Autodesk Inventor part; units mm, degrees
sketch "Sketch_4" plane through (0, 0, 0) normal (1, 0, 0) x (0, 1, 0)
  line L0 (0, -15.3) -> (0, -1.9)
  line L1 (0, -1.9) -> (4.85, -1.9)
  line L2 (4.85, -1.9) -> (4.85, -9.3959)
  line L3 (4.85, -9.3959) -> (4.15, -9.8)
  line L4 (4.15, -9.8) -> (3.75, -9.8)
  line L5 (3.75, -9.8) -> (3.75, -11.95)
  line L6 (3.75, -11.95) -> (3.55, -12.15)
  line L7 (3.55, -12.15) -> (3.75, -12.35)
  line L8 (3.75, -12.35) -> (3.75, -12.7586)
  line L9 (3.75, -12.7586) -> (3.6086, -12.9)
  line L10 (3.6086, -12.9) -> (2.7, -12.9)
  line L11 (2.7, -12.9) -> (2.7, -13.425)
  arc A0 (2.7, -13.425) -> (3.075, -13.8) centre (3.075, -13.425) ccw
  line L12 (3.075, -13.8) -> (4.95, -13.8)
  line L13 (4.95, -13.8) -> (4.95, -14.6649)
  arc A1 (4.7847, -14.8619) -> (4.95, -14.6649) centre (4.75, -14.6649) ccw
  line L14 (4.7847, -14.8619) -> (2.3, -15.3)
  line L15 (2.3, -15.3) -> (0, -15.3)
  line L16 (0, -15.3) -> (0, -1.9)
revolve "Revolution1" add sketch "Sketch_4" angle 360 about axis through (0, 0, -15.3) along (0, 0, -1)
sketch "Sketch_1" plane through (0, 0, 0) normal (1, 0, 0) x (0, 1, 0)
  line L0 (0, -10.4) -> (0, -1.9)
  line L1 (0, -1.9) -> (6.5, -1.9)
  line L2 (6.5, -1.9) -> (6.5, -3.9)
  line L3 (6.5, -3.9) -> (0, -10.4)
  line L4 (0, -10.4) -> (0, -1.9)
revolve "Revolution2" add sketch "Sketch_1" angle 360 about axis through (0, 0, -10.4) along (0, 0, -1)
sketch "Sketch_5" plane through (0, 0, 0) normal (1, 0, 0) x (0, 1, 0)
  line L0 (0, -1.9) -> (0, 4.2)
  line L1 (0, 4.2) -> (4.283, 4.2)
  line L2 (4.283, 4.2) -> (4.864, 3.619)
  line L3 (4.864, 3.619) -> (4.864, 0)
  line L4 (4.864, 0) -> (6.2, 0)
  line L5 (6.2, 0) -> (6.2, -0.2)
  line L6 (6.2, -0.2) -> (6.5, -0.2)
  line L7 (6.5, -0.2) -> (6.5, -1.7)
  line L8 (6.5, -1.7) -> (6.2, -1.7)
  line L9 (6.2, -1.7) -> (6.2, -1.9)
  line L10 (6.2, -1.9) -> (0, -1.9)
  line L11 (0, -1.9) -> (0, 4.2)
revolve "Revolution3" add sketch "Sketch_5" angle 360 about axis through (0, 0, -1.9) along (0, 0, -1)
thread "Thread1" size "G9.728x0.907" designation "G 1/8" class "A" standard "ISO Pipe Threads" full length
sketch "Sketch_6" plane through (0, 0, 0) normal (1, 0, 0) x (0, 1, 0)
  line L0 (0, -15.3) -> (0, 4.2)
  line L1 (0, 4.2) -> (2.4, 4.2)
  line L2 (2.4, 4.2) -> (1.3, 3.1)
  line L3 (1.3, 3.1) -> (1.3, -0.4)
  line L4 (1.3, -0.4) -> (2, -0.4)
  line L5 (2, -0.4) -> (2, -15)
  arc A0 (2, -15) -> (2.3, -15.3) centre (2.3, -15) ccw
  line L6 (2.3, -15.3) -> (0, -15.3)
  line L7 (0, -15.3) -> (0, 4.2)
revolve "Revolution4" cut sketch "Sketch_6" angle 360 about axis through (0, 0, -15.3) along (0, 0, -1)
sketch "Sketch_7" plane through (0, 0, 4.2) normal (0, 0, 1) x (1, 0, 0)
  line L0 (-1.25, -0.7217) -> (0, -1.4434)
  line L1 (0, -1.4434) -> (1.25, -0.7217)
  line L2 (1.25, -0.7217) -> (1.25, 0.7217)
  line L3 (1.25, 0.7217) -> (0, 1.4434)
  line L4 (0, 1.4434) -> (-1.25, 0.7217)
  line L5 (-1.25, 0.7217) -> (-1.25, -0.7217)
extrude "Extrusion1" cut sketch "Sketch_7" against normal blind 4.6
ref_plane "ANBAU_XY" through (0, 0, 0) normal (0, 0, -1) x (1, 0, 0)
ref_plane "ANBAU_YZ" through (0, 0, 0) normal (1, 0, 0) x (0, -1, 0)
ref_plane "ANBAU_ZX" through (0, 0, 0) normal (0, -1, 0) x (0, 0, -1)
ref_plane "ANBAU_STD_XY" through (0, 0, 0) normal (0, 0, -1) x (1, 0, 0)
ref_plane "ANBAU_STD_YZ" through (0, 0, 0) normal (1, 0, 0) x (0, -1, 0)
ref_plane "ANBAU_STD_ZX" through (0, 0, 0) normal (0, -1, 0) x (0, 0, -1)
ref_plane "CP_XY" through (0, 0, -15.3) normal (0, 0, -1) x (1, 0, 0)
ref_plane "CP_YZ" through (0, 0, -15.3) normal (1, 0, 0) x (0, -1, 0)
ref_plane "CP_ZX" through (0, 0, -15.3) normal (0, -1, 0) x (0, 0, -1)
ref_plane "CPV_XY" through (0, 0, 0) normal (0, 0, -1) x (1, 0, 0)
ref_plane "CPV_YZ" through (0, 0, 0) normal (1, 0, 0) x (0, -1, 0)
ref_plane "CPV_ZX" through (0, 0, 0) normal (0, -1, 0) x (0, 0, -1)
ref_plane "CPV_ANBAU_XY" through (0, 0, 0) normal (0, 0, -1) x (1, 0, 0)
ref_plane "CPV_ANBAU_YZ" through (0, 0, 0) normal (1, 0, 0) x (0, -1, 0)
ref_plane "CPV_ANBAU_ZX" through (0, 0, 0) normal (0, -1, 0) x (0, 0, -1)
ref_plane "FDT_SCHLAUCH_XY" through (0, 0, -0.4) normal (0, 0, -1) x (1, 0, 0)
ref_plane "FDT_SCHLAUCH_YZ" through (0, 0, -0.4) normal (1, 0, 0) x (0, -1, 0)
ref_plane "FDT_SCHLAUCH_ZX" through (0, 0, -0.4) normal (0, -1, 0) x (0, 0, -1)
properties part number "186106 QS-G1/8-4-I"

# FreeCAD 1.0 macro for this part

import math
import FreeCAD as App
import Part
import Sketcher

V = App.Vector
Q = App.Units.Quantity

doc = App.newDocument("Part")
body = doc.addObject("PartDesign::Body", "Body")

# Sketch on YZ plane
sketch1 = body.newObject("Sketcher::SketchObject", "Sketch")
sketch1.AttachmentSupport = (doc.getObject("YZ_Plane"), [""])
sketch1.MapMode = "FlatFace"
sketch1.addGeometry(Part.LineSegment(V(0, -1.9, 0), V(0, -15.3, 0)), False)
sketch1.addGeometry(Part.LineSegment(V(0, -15.3, 0), V(2.3, -15.3, 0)), False)
sketch1.addGeometry(Part.LineSegment(V(2.3, -15.3, 0), V(4.78, -14.86, 0)), False)
sketch1.addGeometry(Part.ArcOfCircle(Part.Circle(V(4.75, -14.66, 0), V(0, 0, 1), 0.2), math.radians(-80), math.radians(0)), False)
sketch1.addGeometry(Part.LineSegment(V(4.95, -14.66, 0), V(4.95, -13.8, 0)), False)
sketch1.addGeometry(Part.LineSegment(V(4.95, -13.8, 0), V(3.08, -13.8, 0)), False)
sketch1.addGeometry(Part.ArcOfCircle(Part.Circle(V(3.08, -13.43, 0), V(0, 0, 1), 0.38), math.radians(180), math.radians(270)), False)
sketch1.addGeometry(Part.LineSegment(V(2.7, -13.43, 0), V(2.7, -12.9, 0)), False)
sketch1.addGeometry(Part.LineSegment(V(2.7, -12.9, 0), V(3.61, -12.9, 0)), False)
sketch1.addGeometry(Part.LineSegment(V(3.61, -12.9, 0), V(3.75, -12.76, 0)), False)
sketch1.addGeometry(Part.LineSegment(V(3.75, -12.76, 0), V(3.75, -12.35, 0)), False)
sketch1.addGeometry(Part.LineSegment(V(3.75, -12.35, 0), V(3.55, -12.15, 0)), False)
sketch1.addGeometry(Part.LineSegment(V(3.55, -12.15, 0), V(3.75, -11.95, 0)), False)
sketch1.addGeometry(Part.LineSegment(V(3.75, -11.95, 0), V(3.75, -9.8, 0)), False)
sketch1.addGeometry(Part.LineSegment(V(3.75, -9.8, 0), V(4.15, -9.8, 0)), False)
sketch1.addGeometry(Part.LineSegment(V(4.15, -9.8, 0), V(4.85, -9.4, 0)), False)
sketch1.addGeometry(Part.LineSegment(V(4.85, -9.4, 0), V(4.85, -1.9, 0)), False)
sketch1.addGeometry(Part.LineSegment(V(4.85, -1.9, 0), V(0, -1.9, 0)), False)
sketch1.addConstraint(Sketcher.Constraint("Coincident", 0, 2, 1, 1))
sketch1.addConstraint(Sketcher.Constraint("Coincident", 1, 2, 2, 1))
sketch1.addConstraint(Sketcher.Constraint("Tangent", 2, 2, 3, 1))
sketch1.addConstraint(Sketcher.Constraint("Tangent", 3, 2, 4, 1))
sketch1.addConstraint(Sketcher.Constraint("Coincident", 4, 2, 5, 1))
sketch1.addConstraint(Sketcher.Constraint("Tangent", 5, 2, 6, 2))
sketch1.addConstraint(Sketcher.Constraint("Tangent", 6, 1, 7, 1))
sketch1.addConstraint(Sketcher.Constraint("Coincident", 7, 2, 8, 1))
sketch1.addConstraint(Sketcher.Constraint("Coincident", 8, 2, 9, 1))
sketch1.addConstraint(Sketcher.Constraint("Coincident", 9, 2, 10, 1))
sketch1.addConstraint(Sketcher.Constraint("Coincident", 10, 2, 11, 1))
sketch1.addConstraint(Sketcher.Constraint("Coincident", 11, 2, 12, 1))
sketch1.addConstraint(Sketcher.Constraint("Coincident", 12, 2, 13, 1))
sketch1.addConstraint(Sketcher.Constraint("Coincident", 13, 2, 14, 1))
sketch1.addConstraint(Sketcher.Constraint("Coincident", 14, 2, 15, 1))
sketch1.addConstraint(Sketcher.Constraint("Coincident", 15, 2, 16, 1))
sketch1.addConstraint(Sketcher.Constraint("Coincident", 16, 2, 17, 1))
sketch1.addConstraint(Sketcher.Constraint("Coincident", 17, 2, 0, 1))
sketch1.addConstraint(Sketcher.Constraint("Vertical", 0))
sketch1.addConstraint(Sketcher.Constraint("Horizontal", 1))
sketch1.addConstraint(Sketcher.Constraint("Vertical", 4))
sketch1.addConstraint(Sketcher.Constraint("Horizontal", 5))
sketch1.addConstraint(Sketcher.Constraint("Vertical", 7))
sketch1.addConstraint(Sketcher.Constraint("Horizontal", 8))
sketch1.addConstraint(Sketcher.Constraint("Vertical", 10))
sketch1.addConstraint(Sketcher.Constraint("Vertical", 13))
sketch1.addConstraint(Sketcher.Constraint("Horizontal", 14))
sketch1.addConstraint(Sketcher.Constraint("Vertical", 16))
sketch1.addConstraint(Sketcher.Constraint("Horizontal", 17))
sketch1.addConstraint(Sketcher.Constraint("PointOnObject", 0, 2, -2))
sketch1.addConstraint(Sketcher.Constraint("Perpendicular", 9, 11))
sketch1.addConstraint(Sketcher.Constraint("Perpendicular", 11, 12))
sketch1.addConstraint(Sketcher.Constraint("Vertical", 10, 2, 12, 2))
sketch1.addConstraint(Sketcher.Constraint("Equal", 11, 12))
sketch1.addConstraint(Sketcher.Constraint("Radius", 3, Q("0.2 mm")))
sketch1.addConstraint(Sketcher.Constraint("Angle", 2, Q("9.9996 deg")))
sketch1.addConstraint(Sketcher.Constraint("DistanceX", 1, 1, 1, 2, Q("2.3 mm")))
sketch1.addConstraint(Sketcher.Constraint("DistanceX", 14, 1, 14, 2, Q("0.4 mm")))
sketch1.addConstraint(Sketcher.Constraint("DistanceY", 0, 2, 0, 1, Q("13.4 mm")))
sketch1.addConstraint(Sketcher.Constraint("Radius", 6, Q("0.375 mm")))
sketch1.addConstraint(Sketcher.Constraint("Distance", 9, Q("0.2 mm")))
sketch1.addConstraint(Sketcher.Constraint("DistanceX", 17, 2, 17, 1, Q("4.85 mm")))
sketch1.addConstraint(Sketcher.Constraint("DistanceY", 13, 1, 13, 2, Q("2.15 mm")))
sketch1.addConstraint(Sketcher.Constraint("DistanceY", 0, 2, -1, 1, Q("15.3 mm")))
sketch1.addConstraint(Sketcher.Constraint("DistanceY", 4, 2, -1, 1, Q("13.8 mm")))
sketch1.addConstraint(Sketcher.Constraint("DistanceX", -1, 1, 6, 1, Q("2.7 mm")))
sketch1.addConstraint(Sketcher.Constraint("DistanceY", 7, 2, -1, 1, Q("12.9 mm")))
sketch1.addConstraint(Sketcher.Constraint("DistanceY", 13, 2, -1, 1, Q("9.8 mm")))
sketch1.addConstraint(Sketcher.Constraint("DistanceX", 11, 2, 10, 2, Q("0.2 mm")))
sketch1.addConstraint(Sketcher.Constraint("DistanceX", 14, 2, 15, 2, Q("0.7 mm")))
sketch1.addConstraint(Sketcher.Constraint("DistanceX", 5, 2, 5, 1, Q("1.875 mm")))
sketch1.addConstraint(Sketcher.Constraint("DistanceY", 16, 1, 16, 2, Q("7.496 mm")))
revolution = body.newObject("PartDesign::Revolution", "Revolution")
revolution.Profile = sketch1
revolution.ReferenceAxis = (sketch1, ["V_Axis"])
revolution.Angle = 360

# Sketch on YZ plane
sketch2 = body.newObject("Sketcher::SketchObject", "Sketch001")
sketch2.AttachmentSupport = (doc.getObject("YZ_Plane"), [""])
sketch2.MapMode = "FlatFace"
sketch2.addGeometry(Part.LineSegment(V(0, -1.9, 0), V(0, -10.4, 0)), False)
sketch2.addGeometry(Part.LineSegment(V(0, -10.4, 0), V(6.5, -3.9, 0)), False)
sketch2.addGeometry(Part.LineSegment(V(6.5, -3.9, 0), V(6.5, -1.9, 0)), False)
sketch2.addGeometry(Part.LineSegment(V(6.5, -1.9, 0), V(0, -1.9, 0)), False)
sketch2.addConstraint(Sketcher.Constraint("Coincident", 0, 2, 1, 1))
sketch2.addConstraint(Sketcher.Constraint("Coincident", 1, 2, 2, 1))
sketch2.addConstraint(Sketcher.Constraint("Coincident", 2, 2, 3, 1))
sketch2.addConstraint(Sketcher.Constraint("Coincident", 3, 2, 0, 1))
sketch2.addConstraint(Sketcher.Constraint("Vertical", 0))
sketch2.addConstraint(Sketcher.Constraint("Vertical", 2))
sketch2.addConstraint(Sketcher.Constraint("Horizontal", 3))
sketch2.addConstraint(Sketcher.Constraint("PointOnObject", 0, 2, -2))
sketch2.addConstraint(Sketcher.Constraint("DistanceY", 2, 1, 2, 2, Q("2 mm")))
sketch2.addConstraint(Sketcher.Constraint("Angle", 1, Q("45 deg")))
sketch2.addConstraint(Sketcher.Constraint("DistanceX", 3, 2, 3, 1, Q("6.5 mm")))
sketch2.addConstraint(Sketcher.Constraint("DistanceY", 0, 2, -1, 1, Q("10.4 mm")))
revolution2 = body.newObject("PartDesign::Revolution", "Revolution001")
revolution2.Profile = sketch2
revolution2.ReferenceAxis = (sketch2, ["V_Axis"])
revolution2.Angle = 360

# Sketch on YZ plane
sketch3 = body.newObject("Sketcher::SketchObject", "Sketch002")
sketch3.AttachmentSupport = (doc.getObject("YZ_Plane"), [""])
sketch3.MapMode = "FlatFace"
sketch3.addGeometry(Part.LineSegment(V(0, 4.2, 0), V(0, -1.9, 0)), False)
sketch3.addGeometry(Part.LineSegment(V(0, -1.9, 0), V(6.2, -1.9, 0)), False)
sketch3.addGeometry(Part.LineSegment(V(6.2, -1.9, 0), V(6.2, -1.7, 0)), False)
sketch3.addGeometry(Part.LineSegment(V(6.2, -1.7, 0), V(6.5, -1.7, 0)), False)
sketch3.addGeometry(Part.LineSegment(V(6.5, -1.7, 0), V(6.5, -0.2, 0)), False)
sketch3.addGeometry(Part.LineSegment(V(6.5, -0.2, 0), V(6.2, -0.2, 0)), False)
sketch3.addGeometry(Part.LineSegment(V(6.2, -0.2, 0), V(6.2, 0, 0)), False)
sketch3.addGeometry(Part.LineSegment(V(6.2, 0, 0), V(4.86, 0, 0)), False)
sketch3.addGeometry(Part.LineSegment(V(4.86, 0, 0), V(4.86, 3.62, 0)), False)
sketch3.addGeometry(Part.LineSegment(V(4.86, 3.62, 0), V(4.28, 4.2, 0)), False)
sketch3.addGeometry(Part.LineSegment(V(4.28, 4.2, 0), V(0, 4.2, 0)), False)
sketch3.addConstraint(Sketcher.Constraint("Coincident", 0, 2, 1, 1))
sketch3.addConstraint(Sketcher.Constraint("Coincident", 1, 2, 2, 1))
sketch3.addConstraint(Sketcher.Constraint("Coincident", 2, 2, 3, 1))
sketch3.addConstraint(Sketcher.Constraint("Coincident", 3, 2, 4, 1))
sketch3.addConstraint(Sketcher.Constraint("Coincident", 4, 2, 5, 1))
sketch3.addConstraint(Sketcher.Constraint("Coincident", 5, 2, 6, 1))
sketch3.addConstraint(Sketcher.Constraint("Coincident", 6, 2, 7, 1))
sketch3.addConstraint(Sketcher.Constraint("Coincident", 7, 2, 8, 1))
sketch3.addConstraint(Sketcher.Constraint("Coincident", 8, 2, 9, 1))
sketch3.addConstraint(Sketcher.Constraint("Coincident", 9, 2, 10, 1))
sketch3.addConstraint(Sketcher.Constraint("Coincident", 10, 2, 0, 1))
sketch3.addConstraint(Sketcher.Constraint("Vertical", 0))
sketch3.addConstraint(Sketcher.Constraint("Horizontal", 1))
sketch3.addConstraint(Sketcher.Constraint("Vertical", 2))
sketch3.addConstraint(Sketcher.Constraint("Horizontal", 3))
sketch3.addConstraint(Sketcher.Constraint("Vertical", 4))
sketch3.addConstraint(Sketcher.Constraint("Horizontal", 5))
sketch3.addConstraint(Sketcher.Constraint("Vertical", 6))
sketch3.addConstraint(Sketcher.Constraint("Horizontal", 7))
sketch3.addConstraint(Sketcher.Constraint("Vertical", 8))
sketch3.addConstraint(Sketcher.Constraint("Horizontal", 10))
sketch3.addConstraint(Sketcher.Constraint("PointOnObject", 0, 2, -2))
sketch3.addConstraint(Sketcher.Constraint("PointOnObject", 6, 2, -1))
sketch3.addConstraint(Sketcher.Constraint("Vertical", 2, 2, 5, 2))
sketch3.addConstraint(Sketcher.Constraint("Equal", 2, 6))
sketch3.addConstraint(Sketcher.Constraint("Angle", 9, Q("135 deg")))
sketch3.addConstraint(Sketcher.Constraint("DistanceX", 1, 1, 1, 2, Q("6.2 mm")))
sketch3.addConstraint(Sketcher.Constraint("DistanceX", 3, 1, 3, 2, Q("0.3 mm")))
sketch3.addConstraint(Sketcher.Constraint("DistanceY", 0, 2, 0, 1, Q("6.1 mm")))
sketch3.addConstraint(Sketcher.Constraint("DistanceY", 2, 1, 2, 2, Q("0.2 mm")))
sketch3.addConstraint(Sketcher.Constraint("DistanceY", 4, 1, 4, 2, Q("1.5 mm")))
sketch3.addConstraint(Sketcher.Constraint("DistanceX", 7, 2, 7, 1, Q("1.336 mm")))
sketch3.addConstraint(Sketcher.Constraint("DistanceX", 10, 2, 10, 1, Q("4.283 mm")))
revolution3 = body.newObject("PartDesign::Revolution", "Revolution002")
revolution3.Profile = sketch3
revolution3.ReferenceAxis = (sketch3, ["V_Axis"])
revolution3.Angle = 360

# Sketch on YZ plane
sketch4 = body.newObject("Sketcher::SketchObject", "Sketch003")
sketch4.AttachmentSupport = (doc.getObject("YZ_Plane"), [""])
sketch4.MapMode = "FlatFace"
sketch4.addGeometry(Part.LineSegment(V(0, 4.2, 0), V(0, -15.3, 0)), False)
sketch4.addGeometry(Part.LineSegment(V(0, -15.3, 0), V(2.3, -15.3, 0)), False)
sketch4.addGeometry(Part.ArcOfCircle(Part.Circle(V(2.3, -15, 0), V(0, 0, 1), 0.3), math.radians(180), math.radians(270)), False)
sketch4.addGeometry(Part.LineSegment(V(2, -15, 0), V(2, -0.4, 0)), False)
sketch4.addGeometry(Part.LineSegment(V(2, -0.4, 0), V(1.3, -0.4, 0)), False)
sketch4.addGeometry(Part.LineSegment(V(1.3, -0.4, 0), V(1.3, 3.1, 0)), False)
sketch4.addGeometry(Part.LineSegment(V(1.3, 3.1, 0), V(2.4, 4.2, 0)), False)
sketch4.addGeometry(Part.LineSegment(V(2.4, 4.2, 0), V(0, 4.2, 0)), False)
sketch4.addConstraint(Sketcher.Constraint("Coincident", 0, 2, 1, 1))
sketch4.addConstraint(Sketcher.Constraint("Tangent", 1, 2, 2, 2))
sketch4.addConstraint(Sketcher.Constraint("Tangent", 2, 1, 3, 1))
sketch4.addConstraint(Sketcher.Constraint("Coincident", 3, 2, 4, 1))
sketch4.addConstraint(Sketcher.Constraint("Coincident", 4, 2, 5, 1))
sketch4.addConstraint(Sketcher.Constraint("Coincident", 5, 2, 6, 1))
sketch4.addConstraint(Sketcher.Constraint("Coincident", 6, 2, 7, 1))
sketch4.addConstraint(Sketcher.Constraint("Coincident", 7, 2, 0, 1))
sketch4.addConstraint(Sketcher.Constraint("Vertical", 0))
sketch4.addConstraint(Sketcher.Constraint("Horizontal", 1))
sketch4.addConstraint(Sketcher.Constraint("Vertical", 3))
sketch4.addConstraint(Sketcher.Constraint("Horizontal", 4))
sketch4.addConstraint(Sketcher.Constraint("Vertical", 5))
sketch4.addConstraint(Sketcher.Constraint("Horizontal", 7))
sketch4.addConstraint(Sketcher.Constraint("PointOnObject", 0, 2, -2))
sketch4.addConstraint(Sketcher.Constraint("Radius", 2, Q("0.3 mm")))
sketch4.addConstraint(Sketcher.Constraint("Angle", 6, Q("45 deg")))
sketch4.addConstraint(Sketcher.Constraint("DistanceX", 1, 1, 1, 2, Q("2.3 mm")))
sketch4.addConstraint(Sketcher.Constraint("DistanceX", 4, 2, 4, 1, Q("0.7 mm")))
sketch4.addConstraint(Sketcher.Constraint("DistanceX", 7, 2, 7, 1, Q("2.4 mm")))
sketch4.addConstraint(Sketcher.Constraint("DistanceY", 0, 2, 0, 1, Q("19.5 mm")))
sketch4.addConstraint(Sketcher.Constraint("DistanceY", 3, 1, 3, 2, Q("14.6 mm")))
sketch4.addConstraint(Sketcher.Constraint("DistanceY", 2, 3, -1, 1, Q("15 mm")))
groove = body.newObject("PartDesign::Groove", "Groove")
groove.Profile = sketch4
groove.ReferenceAxis = (sketch4, ["V_Axis"])
groove.Angle = 360

# Sketch on XY plane
sketch5 = body.newObject("Sketcher::SketchObject", "Sketch004")
sketch5.AttachmentSupport = (doc.getObject("XY_Plane"), [""])
sketch5.MapMode = "FlatFace"
sketch5.AttachmentOffset = App.Placement(V(0, 0, 4.2), App.Rotation())
sketch5.addGeometry(Part.LineSegment(V(-1.2, 0.7, 0), V(-1.2, -0.7, 0)), False)
sketch5.addGeometry(Part.LineSegment(V(-1.2, -0.7, 0), V(0, -1.4, 0)), False)
sketch5.addGeometry(Part.LineSegment(V(0, -1.4, 0), V(1.2, -0.7, 0)), False)
sketch5.addGeometry(Part.LineSegment(V(1.2, -0.7, 0), V(1.2, 0.7, 0)), False)
sketch5.addGeometry(Part.LineSegment(V(1.2, 0.7, 0), V(0, 1.4, 0)), False)
sketch5.addGeometry(Part.LineSegment(V(0, 1.4, 0), V(-1.2, 0.7, 0)), False)
sketch5.addConstraint(Sketcher.Constraint("Coincident", 0, 2, 1, 1))
sketch5.addConstraint(Sketcher.Constraint("Coincident", 1, 2, 2, 1))
sketch5.addConstraint(Sketcher.Constraint("Coincident", 2, 2, 3, 1))
sketch5.addConstraint(Sketcher.Constraint("Coincident", 3, 2, 4, 1))
sketch5.addConstraint(Sketcher.Constraint("Coincident", 4, 2, 5, 1))
sketch5.addConstraint(Sketcher.Constraint("Coincident", 5, 2, 0, 1))
sketch5.addConstraint(Sketcher.Constraint("Vertical", 0))
sketch5.addConstraint(Sketcher.Constraint("Vertical", 3))
sketch5.addConstraint(Sketcher.Constraint("Symmetric", 0, 2, 3, 2, -1, 1))
sketch5.addConstraint(Sketcher.Constraint("Symmetric", 1, 2, 4, 2, -1, 1))
sketch5.addConstraint(Sketcher.Constraint("PointOnObject", 1, 2, -2))
sketch5.addConstraint(Sketcher.Constraint("Parallel", 2, 5))
sketch5.addConstraint(Sketcher.Constraint("Horizontal", 0, 2, 2, 2))
sketch5.addConstraint(Sketcher.Constraint("Angle", 1, Q("-30.0004 deg")))
sketch5.addConstraint(Sketcher.Constraint("DistanceX", 0, 2, 2, 2, Q("2.5 mm")))
sketch5.addConstraint(Sketcher.Constraint("DistanceY", 0, 2, 0, 1, Q("1.4434 mm")))
pocket1 = body.newObject("PartDesign::Pocket", "Pocket")
pocket1.Profile = sketch5
pocket1.Length = 4.6

doc.recompute()
